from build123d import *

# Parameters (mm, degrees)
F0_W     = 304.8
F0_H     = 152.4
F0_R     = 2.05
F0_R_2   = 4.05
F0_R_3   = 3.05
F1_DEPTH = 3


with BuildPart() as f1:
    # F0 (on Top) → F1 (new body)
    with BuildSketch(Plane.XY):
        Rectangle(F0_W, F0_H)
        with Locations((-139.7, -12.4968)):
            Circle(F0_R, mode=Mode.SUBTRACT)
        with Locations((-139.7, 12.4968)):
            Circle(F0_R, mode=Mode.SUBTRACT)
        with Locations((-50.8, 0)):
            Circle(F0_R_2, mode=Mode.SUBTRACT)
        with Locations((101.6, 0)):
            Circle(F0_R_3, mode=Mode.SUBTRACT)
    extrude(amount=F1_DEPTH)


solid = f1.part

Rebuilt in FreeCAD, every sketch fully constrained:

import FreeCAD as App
import Part
import Sketcher
Q = App.Units.Quantity


def add_polygon(sketch, points):
    """Adds a closed chain of lines whose ends are joined by coincident constraints."""
    first, n = sketch.GeometryCount, len(points)
    for a, b in zip(points, points[1:] + points[:1]):
        sketch.addGeometry(Part.LineSegment(App.Vector(*a, 0), App.Vector(*b, 0)), False)
    for i in range(n):
        sketch.addConstraint(Sketcher.Constraint("Coincident", first + i, 2, first + (i + 1) % n, 1))

doc = App.newDocument("Part")
body = doc.addObject("PartDesign::Body", "Body")

# Sketch on XY plane
sketch1 = doc.addObject("Sketcher::SketchObject", "Sketch")
body.addObject(sketch1)
sketch1.AttachmentSupport = (doc.XY_Plane, [""])
sketch1.MapMode = "FlatFace"
add_polygon(sketch1, [(-152.4, 76.2), (-152.4, -76.2), (152.4, -76.2), (152.4, 76.2)])  # lines 0-3
sketch1.addGeometry(Part.Circle(App.Vector(-139.7, -12.5, 0), App.Vector(0, 0, 1), 2), False)  # 4
sketch1.addGeometry(Part.Circle(App.Vector(-50.8, 0, 0), App.Vector(0, 0, 1), 4), False)  # 5
sketch1.addGeometry(Part.Circle(App.Vector(-139.7, 12.5, 0), App.Vector(0, 0, 1), 2), False)  # 6
sketch1.addGeometry(Part.Circle(App.Vector(101.6, 0, 0), App.Vector(0, 0, 1), 3), False)  # 7
sketch1.addConstraint([
    Sketcher.Constraint("Vertical", 0),
    Sketcher.Constraint("Horizontal", 1),
    Sketcher.Constraint("Vertical", 2),
    Sketcher.Constraint("Horizontal", 3),
    Sketcher.Constraint("Equal", 4, 6),
    Sketcher.Constraint("Symmetric", 0, 2, 2, 2, -1, 1),
    Sketcher.Constraint("Symmetric", 4, 3, 6, 3, -1),
    Sketcher.Constraint("PointOnObject", 5, 3, -1),
    Sketcher.Constraint("PointOnObject", 7, 3, -1),
    Sketcher.Constraint("Diameter", 4, Q("4.1 mm")),
    Sketcher.Constraint("Diameter", 5, Q("8.1 mm")),
    Sketcher.Constraint("Diameter", 7, Q("6.1 mm")),
    Sketcher.Constraint("DistanceX", 1, 1, 1, 2, Q("304.8 mm")),
    Sketcher.Constraint("DistanceY", 0, 2, 0, 1, Q("152.4 mm")),
    Sketcher.Constraint("DistanceX", 0, 2, 7, 3, Q("254 mm")),
    Sketcher.Constraint("DistanceX", 4, 3, -1, 1, Q("139.7 mm")),
    Sketcher.Constraint("DistanceX", 5, 3, -1, 1, Q("50.8 mm")),
    Sketcher.Constraint("DistanceY", 4, 3, -1, 1, Q("12.4968 mm")),
])
pad1 = doc.addObject("PartDesign::Pad", "Pad")
body.addObject(pad1)
pad1.Profile = sketch1
pad1.Length = 3

doc.recompute()
